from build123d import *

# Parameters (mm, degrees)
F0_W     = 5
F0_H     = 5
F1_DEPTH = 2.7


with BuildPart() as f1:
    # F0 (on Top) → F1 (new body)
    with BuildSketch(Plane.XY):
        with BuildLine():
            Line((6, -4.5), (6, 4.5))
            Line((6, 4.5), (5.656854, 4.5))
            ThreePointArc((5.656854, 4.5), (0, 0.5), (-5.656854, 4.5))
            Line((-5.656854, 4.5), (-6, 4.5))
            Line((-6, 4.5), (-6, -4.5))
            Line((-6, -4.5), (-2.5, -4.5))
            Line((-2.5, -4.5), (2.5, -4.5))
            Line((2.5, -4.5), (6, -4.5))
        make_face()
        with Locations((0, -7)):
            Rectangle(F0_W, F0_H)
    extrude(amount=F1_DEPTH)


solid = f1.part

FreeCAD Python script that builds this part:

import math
import FreeCAD as App
import Part
import Sketcher
from FreeCAD import Vector
Q = App.Units.Quantity

doc = App.newDocument("Part")
body = doc.addObject("PartDesign::Body", "Body")

sketch1 = body.newObject("Sketcher::SketchObject", "Sketch")
sketch1.AttachmentSupport = (doc.getObject("XY_Plane"), [""])
sketch1.MapMode = "FlatFace"
sketch1.addGeometry(Part.LineSegment(Vector(6, -4.5, 0), Vector(6, 4.5, 0)), False)
sketch1.addGeometry(Part.LineSegment(Vector(6, 4.5, 0), Vector(5.66, 4.5, 0)), False)
sketch1.addGeometry(Part.ArcOfCircle(Part.Circle(Vector(0, 6.5, 0), Vector(0, 0, 1), 6), math.radians(-161), math.radians(-19)), False)
sketch1.addGeometry(Part.LineSegment(Vector(-5.66, 4.5, 0), Vector(-6, 4.5, 0)), False)
sketch1.addGeometry(Part.LineSegment(Vector(-6, 4.5, 0), Vector(-6, -4.5, 0)), False)
sketch1.addGeometry(Part.LineSegment(Vector(-6, -4.5, 0), Vector(-2.5, -4.5, 0)), False)
sketch1.addGeometry(Part.LineSegment(Vector(-2.5, -4.5, 0), Vector(-2.5, -9.5, 0)), False)
sketch1.addGeometry(Part.LineSegment(Vector(-2.5, -9.5, 0), Vector(2.5, -9.5, 0)), False)
sketch1.addGeometry(Part.LineSegment(Vector(2.5, -9.5, 0), Vector(2.5, -4.5, 0)), False)
sketch1.addGeometry(Part.LineSegment(Vector(2.5, -4.5, 0), Vector(6, -4.5, 0)), False)
sketch1.addConstraint(Sketcher.Constraint("Coincident", 0, 2, 1, 1))
sketch1.addConstraint(Sketcher.Constraint("Coincident", 1, 2, 2, 2))
sketch1.addConstraint(Sketcher.Constraint("Coincident", 2, 1, 3, 1))
sketch1.addConstraint(Sketcher.Constraint("Coincident", 3, 2, 4, 1))
sketch1.addConstraint(Sketcher.Constraint("Coincident", 4, 2, 5, 1))
sketch1.addConstraint(Sketcher.Constraint("Coincident", 5, 2, 6, 1))
sketch1.addConstraint(Sketcher.Constraint("Coincident", 6, 2, 7, 1))
sketch1.addConstraint(Sketcher.Constraint("Coincident", 7, 2, 8, 1))
sketch1.addConstraint(Sketcher.Constraint("Coincident", 8, 2, 9, 1))
sketch1.addConstraint(Sketcher.Constraint("Coincident", 9, 2, 0, 1))
sketch1.addConstraint(Sketcher.Constraint("Vertical", 0))
sketch1.addConstraint(Sketcher.Constraint("Horizontal", 1))
sketch1.addConstraint(Sketcher.Constraint("Horizontal", 3))
sketch1.addConstraint(Sketcher.Constraint("Vertical", 4))
sketch1.addConstraint(Sketcher.Constraint("Horizontal", 5))
sketch1.addConstraint(Sketcher.Constraint("Vertical", 6))
sketch1.addConstraint(Sketcher.Constraint("Horizontal", 7))
sketch1.addConstraint(Sketcher.Constraint("Vertical", 8))
sketch1.addConstraint(Sketcher.Constraint("Horizontal", 9))
sketch1.addConstraint(Sketcher.Constraint("Symmetric", 0, 2, 4, 2, -1, 1))
sketch1.addConstraint(Sketcher.Constraint("Symmetric", 1, 2, 2, 1, -2))
sketch1.addConstraint(Sketcher.Constraint("Symmetric", 5, 2, 8, 2, -2))
sketch1.addConstraint(Sketcher.Constraint("Equal", 7, 6))
sketch1.addConstraint(Sketcher.Constraint("Radius", 2, Q("6 mm")))
sketch1.addConstraint(Sketcher.Constraint("DistanceX", 7, 1, 7, 2, Q("5 mm")))
sketch1.addConstraint(Sketcher.Constraint("DistanceY", 0, 1, 0, 2, Q("9 mm")))
sketch1.addConstraint(Sketcher.Constraint("DistanceX", 5, 1, 5, 2, Q("3.5 mm")))
sketch1.addConstraint(Sketcher.Constraint("DistanceY", 0, 2, 2, 3, Q("2 mm")))
pad1 = body.newObject("PartDesign::Pad", "Pad")
pad1.Profile = sketch1
pad1.Length = 2.7

doc.recompute()
